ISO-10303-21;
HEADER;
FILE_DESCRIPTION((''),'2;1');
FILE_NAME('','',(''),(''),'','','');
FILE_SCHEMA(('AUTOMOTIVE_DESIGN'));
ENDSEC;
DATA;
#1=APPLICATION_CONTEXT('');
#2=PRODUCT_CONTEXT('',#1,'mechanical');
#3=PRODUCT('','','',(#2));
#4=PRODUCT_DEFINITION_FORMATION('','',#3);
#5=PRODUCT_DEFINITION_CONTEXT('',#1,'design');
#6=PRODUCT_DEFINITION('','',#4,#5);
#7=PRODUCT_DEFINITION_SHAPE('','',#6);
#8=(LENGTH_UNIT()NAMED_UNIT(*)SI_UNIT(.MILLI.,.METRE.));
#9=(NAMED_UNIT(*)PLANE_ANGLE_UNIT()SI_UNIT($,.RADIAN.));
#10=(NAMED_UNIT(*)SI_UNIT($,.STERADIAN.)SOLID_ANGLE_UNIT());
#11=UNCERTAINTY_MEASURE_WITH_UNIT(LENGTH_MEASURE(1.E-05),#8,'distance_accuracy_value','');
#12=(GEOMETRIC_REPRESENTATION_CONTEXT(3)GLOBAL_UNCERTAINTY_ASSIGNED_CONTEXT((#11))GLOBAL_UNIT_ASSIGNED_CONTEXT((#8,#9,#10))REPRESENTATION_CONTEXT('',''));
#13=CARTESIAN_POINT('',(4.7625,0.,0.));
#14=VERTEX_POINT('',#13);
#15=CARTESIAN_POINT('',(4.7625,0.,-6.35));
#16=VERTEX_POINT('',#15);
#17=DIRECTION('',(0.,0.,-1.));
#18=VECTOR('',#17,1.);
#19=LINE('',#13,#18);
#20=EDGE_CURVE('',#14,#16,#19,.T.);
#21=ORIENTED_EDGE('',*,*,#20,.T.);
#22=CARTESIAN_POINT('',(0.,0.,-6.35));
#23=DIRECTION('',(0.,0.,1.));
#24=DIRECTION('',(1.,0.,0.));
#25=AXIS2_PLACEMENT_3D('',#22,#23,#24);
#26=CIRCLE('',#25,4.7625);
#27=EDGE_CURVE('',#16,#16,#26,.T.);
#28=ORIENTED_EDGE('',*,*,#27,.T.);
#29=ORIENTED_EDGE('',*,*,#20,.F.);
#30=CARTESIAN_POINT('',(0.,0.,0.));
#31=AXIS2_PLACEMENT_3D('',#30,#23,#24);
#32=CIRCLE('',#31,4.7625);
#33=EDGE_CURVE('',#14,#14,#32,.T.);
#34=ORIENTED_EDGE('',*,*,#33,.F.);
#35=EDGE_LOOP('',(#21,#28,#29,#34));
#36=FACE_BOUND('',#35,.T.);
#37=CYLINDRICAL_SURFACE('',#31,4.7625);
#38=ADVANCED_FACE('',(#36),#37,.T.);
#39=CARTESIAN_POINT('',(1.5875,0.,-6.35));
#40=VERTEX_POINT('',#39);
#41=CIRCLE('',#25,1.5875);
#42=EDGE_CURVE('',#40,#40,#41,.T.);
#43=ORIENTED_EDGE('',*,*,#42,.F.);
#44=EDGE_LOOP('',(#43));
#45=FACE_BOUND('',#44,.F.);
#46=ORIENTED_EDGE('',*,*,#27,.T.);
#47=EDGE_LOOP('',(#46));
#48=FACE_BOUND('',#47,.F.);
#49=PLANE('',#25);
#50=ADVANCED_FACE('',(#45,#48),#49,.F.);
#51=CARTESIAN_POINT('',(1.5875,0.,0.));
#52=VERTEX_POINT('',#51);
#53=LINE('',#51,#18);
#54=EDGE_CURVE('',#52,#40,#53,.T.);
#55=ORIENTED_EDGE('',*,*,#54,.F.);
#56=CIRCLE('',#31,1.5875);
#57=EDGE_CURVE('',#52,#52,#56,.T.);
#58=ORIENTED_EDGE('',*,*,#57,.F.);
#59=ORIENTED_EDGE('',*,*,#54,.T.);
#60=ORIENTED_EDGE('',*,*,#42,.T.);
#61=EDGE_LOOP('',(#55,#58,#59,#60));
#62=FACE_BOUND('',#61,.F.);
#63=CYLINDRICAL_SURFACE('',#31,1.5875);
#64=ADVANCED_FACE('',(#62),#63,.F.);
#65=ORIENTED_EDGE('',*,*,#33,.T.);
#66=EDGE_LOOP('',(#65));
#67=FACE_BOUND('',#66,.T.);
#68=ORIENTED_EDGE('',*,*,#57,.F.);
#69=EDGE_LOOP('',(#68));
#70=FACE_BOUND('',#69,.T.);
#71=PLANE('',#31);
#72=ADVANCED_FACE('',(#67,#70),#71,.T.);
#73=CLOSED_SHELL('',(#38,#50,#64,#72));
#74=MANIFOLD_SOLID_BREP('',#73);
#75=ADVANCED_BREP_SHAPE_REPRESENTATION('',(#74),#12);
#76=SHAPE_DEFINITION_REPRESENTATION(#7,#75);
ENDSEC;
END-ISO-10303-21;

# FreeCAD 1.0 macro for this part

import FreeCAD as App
import Part
import Sketcher
from FreeCAD import Vector
Q = App.Units.Quantity

doc = App.newDocument("Part")
body = doc.addObject("PartDesign::Body", "Body")

sketch1 = doc.addObject("Sketcher::SketchObject", "Sketch")
body.addObject(sketch1)
sketch1.AttachmentSupport = (doc.XY_Plane, [""])
sketch1.MapMode = "FlatFace"
sketch1.addGeometry([
    Part.Circle(Vector(0, 0, 0), Vector(0, 0, 1), 4.8),
    Part.Circle(Vector(0, 0, 0), Vector(0, 0, 1), 1.6),
], False)
sketch1.addConstraint([
    Sketcher.Constraint("Coincident", 0, 3, -1, 1),
    Sketcher.Constraint("Coincident", 1, 3, -1, 1),
    Sketcher.Constraint("Diameter", 0, Q("0.375 in")),
    Sketcher.Constraint("Diameter", 1, Q("0.125 in")),
])
pad1 = doc.addObject("PartDesign::Pad", "Pad")
body.addObject(pad1)
pad1.Profile = sketch1
pad1.Length = Q("0.25 in")
pad1.Reversed = True

doc.recompute()
